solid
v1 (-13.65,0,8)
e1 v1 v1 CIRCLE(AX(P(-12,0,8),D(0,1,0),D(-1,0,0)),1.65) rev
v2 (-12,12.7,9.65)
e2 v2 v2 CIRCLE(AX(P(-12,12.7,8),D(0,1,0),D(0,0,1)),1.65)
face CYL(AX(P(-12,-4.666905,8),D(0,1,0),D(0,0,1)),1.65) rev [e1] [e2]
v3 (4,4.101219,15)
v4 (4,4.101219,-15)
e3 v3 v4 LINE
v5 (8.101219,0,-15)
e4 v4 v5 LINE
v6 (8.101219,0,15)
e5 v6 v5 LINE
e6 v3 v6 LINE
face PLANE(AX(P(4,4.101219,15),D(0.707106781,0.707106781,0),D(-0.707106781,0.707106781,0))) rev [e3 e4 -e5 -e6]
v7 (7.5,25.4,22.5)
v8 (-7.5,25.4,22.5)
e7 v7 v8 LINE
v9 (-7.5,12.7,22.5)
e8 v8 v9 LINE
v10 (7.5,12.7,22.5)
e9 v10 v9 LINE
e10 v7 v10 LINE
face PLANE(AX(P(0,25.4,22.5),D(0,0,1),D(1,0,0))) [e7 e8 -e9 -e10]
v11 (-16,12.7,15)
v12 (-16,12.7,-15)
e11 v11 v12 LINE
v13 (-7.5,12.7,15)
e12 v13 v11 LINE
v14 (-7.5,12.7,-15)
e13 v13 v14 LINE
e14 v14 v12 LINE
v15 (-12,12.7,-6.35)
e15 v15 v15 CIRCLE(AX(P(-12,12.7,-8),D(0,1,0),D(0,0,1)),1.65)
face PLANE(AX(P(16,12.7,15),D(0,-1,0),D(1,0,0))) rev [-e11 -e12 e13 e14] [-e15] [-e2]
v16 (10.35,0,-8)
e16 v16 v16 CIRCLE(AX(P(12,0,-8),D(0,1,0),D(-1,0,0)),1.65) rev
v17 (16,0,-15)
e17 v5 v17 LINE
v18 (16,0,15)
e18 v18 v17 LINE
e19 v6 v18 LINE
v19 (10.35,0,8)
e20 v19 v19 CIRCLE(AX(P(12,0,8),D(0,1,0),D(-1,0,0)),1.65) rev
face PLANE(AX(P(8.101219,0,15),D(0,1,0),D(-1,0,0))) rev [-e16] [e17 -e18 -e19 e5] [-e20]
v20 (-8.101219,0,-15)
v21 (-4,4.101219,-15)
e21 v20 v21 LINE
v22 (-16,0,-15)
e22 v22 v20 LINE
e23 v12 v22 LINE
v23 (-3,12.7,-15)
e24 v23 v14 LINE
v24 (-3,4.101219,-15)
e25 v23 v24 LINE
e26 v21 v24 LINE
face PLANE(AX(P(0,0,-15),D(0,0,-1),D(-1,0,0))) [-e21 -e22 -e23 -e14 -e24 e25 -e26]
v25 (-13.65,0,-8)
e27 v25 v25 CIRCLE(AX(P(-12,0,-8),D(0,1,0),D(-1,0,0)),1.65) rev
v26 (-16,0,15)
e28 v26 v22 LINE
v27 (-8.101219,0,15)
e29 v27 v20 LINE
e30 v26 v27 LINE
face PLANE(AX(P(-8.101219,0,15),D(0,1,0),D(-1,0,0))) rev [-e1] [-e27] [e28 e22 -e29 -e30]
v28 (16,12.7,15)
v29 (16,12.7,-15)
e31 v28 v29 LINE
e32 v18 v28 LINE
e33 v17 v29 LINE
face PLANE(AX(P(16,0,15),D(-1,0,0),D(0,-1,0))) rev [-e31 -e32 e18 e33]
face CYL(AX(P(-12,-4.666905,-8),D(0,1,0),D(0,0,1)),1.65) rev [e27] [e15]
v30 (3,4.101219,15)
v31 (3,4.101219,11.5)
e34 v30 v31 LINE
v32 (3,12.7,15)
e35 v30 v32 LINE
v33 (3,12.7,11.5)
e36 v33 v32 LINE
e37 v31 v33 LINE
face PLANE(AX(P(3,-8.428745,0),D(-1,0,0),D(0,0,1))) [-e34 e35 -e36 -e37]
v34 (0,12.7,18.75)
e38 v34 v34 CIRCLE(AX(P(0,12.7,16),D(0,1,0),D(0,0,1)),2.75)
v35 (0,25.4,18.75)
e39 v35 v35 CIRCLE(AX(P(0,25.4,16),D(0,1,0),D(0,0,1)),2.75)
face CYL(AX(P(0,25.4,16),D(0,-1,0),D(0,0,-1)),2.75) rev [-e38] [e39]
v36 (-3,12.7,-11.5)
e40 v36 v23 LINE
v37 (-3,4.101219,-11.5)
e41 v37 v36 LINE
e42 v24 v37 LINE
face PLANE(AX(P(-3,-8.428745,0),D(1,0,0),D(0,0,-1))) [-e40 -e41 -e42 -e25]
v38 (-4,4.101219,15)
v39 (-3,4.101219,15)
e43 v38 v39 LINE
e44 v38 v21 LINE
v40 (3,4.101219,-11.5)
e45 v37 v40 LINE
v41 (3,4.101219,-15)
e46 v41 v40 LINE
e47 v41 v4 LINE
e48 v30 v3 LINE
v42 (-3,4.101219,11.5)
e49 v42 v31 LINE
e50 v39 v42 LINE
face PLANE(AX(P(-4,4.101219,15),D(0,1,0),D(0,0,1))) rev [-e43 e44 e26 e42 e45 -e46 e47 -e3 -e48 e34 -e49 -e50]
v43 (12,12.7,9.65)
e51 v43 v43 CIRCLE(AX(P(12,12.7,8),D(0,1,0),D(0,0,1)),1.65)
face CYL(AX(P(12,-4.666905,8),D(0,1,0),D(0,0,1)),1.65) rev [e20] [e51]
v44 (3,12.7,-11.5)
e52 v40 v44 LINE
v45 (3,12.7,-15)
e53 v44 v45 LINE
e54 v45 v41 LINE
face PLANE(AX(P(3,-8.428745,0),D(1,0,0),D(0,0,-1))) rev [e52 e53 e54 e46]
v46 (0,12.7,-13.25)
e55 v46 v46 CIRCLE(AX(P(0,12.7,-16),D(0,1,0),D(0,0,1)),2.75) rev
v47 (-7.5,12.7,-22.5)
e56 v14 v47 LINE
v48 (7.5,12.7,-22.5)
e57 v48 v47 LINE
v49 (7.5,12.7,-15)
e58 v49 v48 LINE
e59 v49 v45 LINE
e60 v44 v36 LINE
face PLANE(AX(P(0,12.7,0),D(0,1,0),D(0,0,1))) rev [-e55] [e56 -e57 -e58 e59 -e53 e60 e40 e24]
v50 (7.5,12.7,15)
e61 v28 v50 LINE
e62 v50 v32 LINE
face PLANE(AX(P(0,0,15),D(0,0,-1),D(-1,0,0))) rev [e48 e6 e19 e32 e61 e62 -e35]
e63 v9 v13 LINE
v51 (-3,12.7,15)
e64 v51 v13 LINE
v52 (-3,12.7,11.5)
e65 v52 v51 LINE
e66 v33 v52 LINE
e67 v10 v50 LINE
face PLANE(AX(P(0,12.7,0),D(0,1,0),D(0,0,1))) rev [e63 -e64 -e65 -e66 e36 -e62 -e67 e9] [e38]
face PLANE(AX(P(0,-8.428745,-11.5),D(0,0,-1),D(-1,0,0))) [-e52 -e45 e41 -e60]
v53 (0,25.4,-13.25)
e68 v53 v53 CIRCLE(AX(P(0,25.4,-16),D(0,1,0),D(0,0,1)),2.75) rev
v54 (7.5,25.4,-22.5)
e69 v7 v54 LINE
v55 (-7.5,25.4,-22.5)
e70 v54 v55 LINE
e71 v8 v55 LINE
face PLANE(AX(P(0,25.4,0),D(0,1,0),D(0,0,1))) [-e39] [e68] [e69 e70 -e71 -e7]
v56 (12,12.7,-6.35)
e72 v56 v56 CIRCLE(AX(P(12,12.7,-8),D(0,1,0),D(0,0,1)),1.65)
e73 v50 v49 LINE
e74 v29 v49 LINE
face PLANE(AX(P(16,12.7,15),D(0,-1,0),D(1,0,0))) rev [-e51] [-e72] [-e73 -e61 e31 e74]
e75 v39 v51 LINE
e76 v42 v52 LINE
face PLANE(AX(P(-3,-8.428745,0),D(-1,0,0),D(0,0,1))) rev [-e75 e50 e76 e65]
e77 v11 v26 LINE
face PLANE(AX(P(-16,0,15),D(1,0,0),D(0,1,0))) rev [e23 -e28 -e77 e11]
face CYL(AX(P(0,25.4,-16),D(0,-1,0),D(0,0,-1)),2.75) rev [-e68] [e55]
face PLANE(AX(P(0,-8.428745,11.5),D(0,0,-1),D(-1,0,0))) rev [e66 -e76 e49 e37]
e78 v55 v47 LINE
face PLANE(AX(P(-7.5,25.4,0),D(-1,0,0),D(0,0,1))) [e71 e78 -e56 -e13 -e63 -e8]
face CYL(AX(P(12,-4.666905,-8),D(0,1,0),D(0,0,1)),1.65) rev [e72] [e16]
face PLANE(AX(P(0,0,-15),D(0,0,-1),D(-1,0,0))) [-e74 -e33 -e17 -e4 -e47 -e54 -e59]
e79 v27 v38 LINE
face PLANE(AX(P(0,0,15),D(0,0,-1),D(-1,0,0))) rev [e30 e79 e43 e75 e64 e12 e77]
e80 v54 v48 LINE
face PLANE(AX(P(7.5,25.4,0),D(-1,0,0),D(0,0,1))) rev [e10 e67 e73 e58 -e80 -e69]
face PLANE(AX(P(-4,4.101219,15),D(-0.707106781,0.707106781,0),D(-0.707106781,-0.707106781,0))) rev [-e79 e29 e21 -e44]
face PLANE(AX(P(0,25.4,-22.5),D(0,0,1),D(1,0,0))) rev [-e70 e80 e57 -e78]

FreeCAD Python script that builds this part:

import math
import FreeCAD as App
import Part
import Sketcher

V = App.Vector


def add_polygon(sketch, points):
    """Adds a closed chain of lines whose ends are joined by coincident constraints."""
    first, n = sketch.GeometryCount, len(points)
    for a, b in zip(points, points[1:] + points[:1]):
        sketch.addGeometry(Part.LineSegment(App.Vector(*a, 0), App.Vector(*b, 0)), False)
    for i in range(n):
        sketch.addConstraint(Sketcher.Constraint("Coincident", first + i, 2, first + (i + 1) % n, 1))

doc = App.newDocument("Part")
body = doc.addObject("PartDesign::Body", "Body")

# Sketch on XY plane
sketch1 = body.newObject("Sketcher::SketchObject", "Sketch")
sketch1.AttachmentSupport = (doc.getObject("XY_Plane"), [""])
sketch1.MapMode = "FlatFace"
add_polygon(sketch1, [(-4, 4), (4, 4), (8, 0), (16, 0), (16, 13), (-16, 13), (-16, 0), (-8, 0)])  # lines 0-7
sketch1.addConstraint([
    Sketcher.Constraint("Horizontal", 0),
    Sketcher.Constraint("Horizontal", 2),
    Sketcher.Constraint("Vertical", 3),
    Sketcher.Constraint("Horizontal", 4),
    Sketcher.Constraint("Vertical", 5),
    Sketcher.Constraint("Horizontal", 6),
    Sketcher.Constraint("Symmetric", 2, 2, 5, 2, -1, 1),
    Sketcher.Constraint("Symmetric", 1, 2, 6, 2, -2),
    Sketcher.Constraint("Perpendicular", 1, 7),
    Sketcher.Constraint("Equal", 1, 7),
    Sketcher.Constraint("DistanceX", 0, 1, 0, 2, 8.0),
    Sketcher.Constraint("DistanceX", 4, 2, 4, 1, 32.0),
    Sketcher.Constraint("DistanceY", 3, 1, 3, 2, 12.7),
    Sketcher.Constraint("Distance", 1, 5.8),
])
pad1 = body.newObject("PartDesign::Pad", "Pad")
pad1.Profile = sketch1
pad1.Length = 30
pad1.Midplane = True

# Sketch on XZ plane
sketch2 = body.newObject("Sketcher::SketchObject", "Sketch001")
sketch2.AttachmentSupport = (doc.getObject("XZ_Plane"), [""])
sketch2.MapMode = "FlatFace"
sketch2.AttachmentOffset = App.Placement(V(0, 0, -12.7), App.Rotation())
sketch2.addGeometry([
    Part.Circle(V(12, -8, 0), V(0, 0, 1), 1.6),
    Part.Circle(V(12, 8, 0), V(0, 0, 1), 1.6),
    Part.Circle(V(-12, 8, 0), V(0, 0, 1), 1.6),
    Part.Circle(V(-12, -8, 0), V(0, 0, 1), 1.6),
], False)
sketch2.addConstraint([
    Sketcher.Constraint("Equal", 0, 1),
    Sketcher.Constraint("Equal", 1, 2),
    Sketcher.Constraint("Equal", 2, 3),
    Sketcher.Constraint("Symmetric", 0, 3, 2, 3, -1, 1),
    Sketcher.Constraint("Symmetric", 1, 3, 3, 3, -1, 1),
    Sketcher.Constraint("Symmetric", 1, 3, 2, 3, -2),
    Sketcher.Constraint("Diameter", 0, 3.3),
    Sketcher.Constraint("DistanceX", -1, 1, 0, 3, 12.0),
    Sketcher.Constraint("DistanceY", 0, 3, -1, 1, 8.0),
])
pocket1 = body.newObject("PartDesign::Pocket", "Pocket")
pocket1.Profile = sketch2
pocket1.Length = 12.7
pocket1.Reversed = True

# Sketch on XZ plane
sketch3 = body.newObject("Sketcher::SketchObject", "Sketch002")
sketch3.AttachmentSupport = (doc.getObject("XZ_Plane"), [""])
sketch3.MapMode = "FlatFace"
sketch3.AttachmentOffset = App.Placement(V(0, 0, -12.7), App.Rotation())
add_polygon(sketch3, [(-7.5, -22.5), (-7.5, 22.5), (7.5, 22.5), (7.5, -22.5)])  # lines 0-3
sketch3.addGeometry(Part.ArcOfCircle(Part.Circle(V(0, 16, 0), V(0, 0, 1), 2.7), math.radians(-21), math.radians(0)), False)  # 4
sketch3.addGeometry(Part.ArcOfCircle(Part.Circle(V(0, 16, 0), V(0, 0, 1), 2.8), math.radians(0), math.radians(201)), False)  # 5
sketch3.addGeometry(Part.ArcOfCircle(Part.Circle(V(0, 16, 0), V(0, 0, 1), 2.7), math.radians(-159), math.radians(-21)), False)  # 6
sketch3.addGeometry(Part.ArcOfCircle(Part.Circle(V(0, -16, 0), V(0, 0, 1), 2.8), math.radians(159), math.radians(360)), False)  # 7
sketch3.addGeometry(Part.ArcOfCircle(Part.Circle(V(0, -16, 0), V(0, 0, 1), 2.7), math.radians(0), math.radians(21)), False)  # 8
sketch3.addGeometry(Part.ArcOfCircle(Part.Circle(V(0, -16, 0), V(0, 0, 1), 2.7), math.radians(21), math.radians(159)), False)  # 9
sketch3.addConstraint([
    Sketcher.Constraint("Tangent", 4, 2, 5, 1),
    Sketcher.Constraint("Tangent", 5, 2, 6, 1),
    Sketcher.Constraint("Tangent", 6, 2, 4, 1),
    Sketcher.Constraint("Tangent", 7, 2, 8, 1),
    Sketcher.Constraint("Tangent", 8, 2, 9, 1),
    Sketcher.Constraint("Tangent", 9, 2, 7, 1),
    Sketcher.Constraint("Vertical", 0),
    Sketcher.Constraint("Horizontal", 1),
    Sketcher.Constraint("Vertical", 2),
    Sketcher.Constraint("Horizontal", 3),
    Sketcher.Constraint("Equal", 6, 7),
    Sketcher.Constraint("Symmetric", 4, 3, 7, 3, -1, 1),
    Sketcher.Constraint("Symmetric", 0, 2, 2, 2, -1, 1),
    Sketcher.Constraint("Symmetric", 5, 2, 6, 2, -2),
    Sketcher.Constraint("Horizontal", 6, 3, 4, 2),
    Sketcher.Constraint("Horizontal", 9, 3, 7, 2),
    Sketcher.Constraint("Horizontal", 8, 2, 9, 2),
    Sketcher.Constraint("Vertical", 6, 2, 8, 2),
    Sketcher.Constraint("DistanceX", 1, 1, 1, 2, 15.0),
    Sketcher.Constraint("DistanceY", 0, 1, 0, 2, 45.0),
    Sketcher.Constraint("Radius", 4, 2.75),
    Sketcher.Constraint("DistanceY", -1, 1, 4, 3, 16.0),
    Sketcher.Constraint("DistanceY", -1, 1, 5, 2, 15.0),
])
pad2 = body.newObject("PartDesign::Pad", "Pad001")
pad2.Profile = sketch3
pad2.Length = 12.7
pad2.Reversed = True

# Sketch on XZ plane
sketch4 = body.newObject("Sketcher::SketchObject", "Sketch003")
sketch4.AttachmentSupport = (doc.getObject("XZ_Plane"), [""])
sketch4.MapMode = "FlatFace"
sketch4.AttachmentOffset = App.Placement(V(0, 0, -12.7), App.Rotation())
add_polygon(sketch4, [(-3, 11.5), (-3, 15), (3, 15), (3, 11.5)])  # lines 0-3
add_polygon(sketch4, [(-3, -15), (-3, -11.5), (3, -11.5), (3, -15)])  # lines 4-7
sketch4.addConstraint([
    Sketcher.Constraint("Vertical", 0),
    Sketcher.Constraint("Horizontal", 1),
    Sketcher.Constraint("Vertical", 2),
    Sketcher.Constraint("Horizontal", 3),
    Sketcher.Constraint("Vertical", 4),
    Sketcher.Constraint("Horizontal", 5),
    Sketcher.Constraint("Vertical", 6),
    Sketcher.Constraint("Horizontal", 7),
    Sketcher.Constraint("Symmetric", 2, 2, 4, 2, -1, 1),
    Sketcher.Constraint("Symmetric", 0, 2, 6, 2, -1, 1),
    Sketcher.Constraint("Vertical", 3, 2, 4, 2),
    Sketcher.Constraint("DistanceX", 1, 1, 1, 2, 6.0),
    Sketcher.Constraint("DistanceY", 0, 1, 0, 2, 3.5),
    Sketcher.Constraint("DistanceY", -1, 1, 0, 2, 15.0),
])
pocket2 = body.newObject("PartDesign::Pocket", "Pocket001")
pocket2.Profile = sketch4
pocket2.Length = 12.7
pocket2.Reversed = True

doc.recompute()
